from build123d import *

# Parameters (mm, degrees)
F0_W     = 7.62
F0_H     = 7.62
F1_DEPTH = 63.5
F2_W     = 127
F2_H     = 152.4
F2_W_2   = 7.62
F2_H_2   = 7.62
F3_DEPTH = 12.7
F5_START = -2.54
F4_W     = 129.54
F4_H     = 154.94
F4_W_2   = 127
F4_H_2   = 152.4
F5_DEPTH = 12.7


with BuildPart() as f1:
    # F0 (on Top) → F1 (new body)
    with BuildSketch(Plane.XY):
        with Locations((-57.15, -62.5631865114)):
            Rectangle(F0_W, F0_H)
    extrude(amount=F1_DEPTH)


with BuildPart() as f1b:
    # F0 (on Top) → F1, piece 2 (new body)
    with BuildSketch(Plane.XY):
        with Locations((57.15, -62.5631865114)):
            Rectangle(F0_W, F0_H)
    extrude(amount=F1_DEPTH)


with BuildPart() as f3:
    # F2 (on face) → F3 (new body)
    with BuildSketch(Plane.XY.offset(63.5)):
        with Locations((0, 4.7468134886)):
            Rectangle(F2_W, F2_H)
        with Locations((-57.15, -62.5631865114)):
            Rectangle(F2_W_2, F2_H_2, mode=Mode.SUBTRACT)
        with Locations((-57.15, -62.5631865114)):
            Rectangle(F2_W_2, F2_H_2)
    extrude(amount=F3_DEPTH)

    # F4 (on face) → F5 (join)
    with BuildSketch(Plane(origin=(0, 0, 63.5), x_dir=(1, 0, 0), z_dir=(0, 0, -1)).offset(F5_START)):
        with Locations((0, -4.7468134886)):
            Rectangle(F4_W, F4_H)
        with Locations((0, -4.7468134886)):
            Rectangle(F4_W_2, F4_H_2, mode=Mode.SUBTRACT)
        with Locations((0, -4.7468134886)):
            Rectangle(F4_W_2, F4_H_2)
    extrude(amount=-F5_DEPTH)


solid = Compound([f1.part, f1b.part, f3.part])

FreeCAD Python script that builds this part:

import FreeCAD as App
import Part
import Sketcher
Q = App.Units.Quantity

doc = App.newDocument("Part")
params = doc.addObject("Spreadsheet::Sheet", "Params")
for row, (alias, value) in enumerate([
    ("sketch1_width", "0.3 in"),
    ("pad1_length", "2.5 in"),
    ("sketch2_width", "0.3 in"),
    ("pad2_length", "2.5 in"),
    ("sketch3_width", "5 in"),
    ("sketch3_height", "6 in"),
    ("pad3_length", "0.5 in"),
    ("sketch4_width", "5.1 in"),
    ("sketch4_height", "6.1 in"),
    ("pad4_length", "0.5 in"),
], start=1):
    params.set(f"A{row}", alias)
    params.set(f"B{row}", "=" + value)
    params.setAlias(f"B{row}", alias)

body = doc.addObject("PartDesign::Body", "Body")

sketch1 = doc.addObject("Sketcher::SketchObject", "Sketch")
body.addObject(sketch1)
sketch1.AttachmentSupport = (doc.XY_Plane, [""])
sketch1.MapMode = "FlatFace"
sketch1.addGeometry([
    Part.LineSegment(App.Vector(-61, -59, 0), App.Vector(-61, -66, 0)),
    Part.LineSegment(App.Vector(-61, -66, 0), App.Vector(-53, -66, 0)),
    Part.LineSegment(App.Vector(-53, -66, 0), App.Vector(-53, -59, 0)),
    Part.LineSegment(App.Vector(-53, -59, 0), App.Vector(-61, -59, 0)),
], False)
sketch1.addConstraint([
    Sketcher.Constraint("Coincident", 0, 2, 1, 1),
    Sketcher.Constraint("Coincident", 1, 2, 2, 1),
    Sketcher.Constraint("Coincident", 2, 2, 3, 1),
    Sketcher.Constraint("Coincident", 3, 2, 0, 1),
    Sketcher.Constraint("Vertical", 0),
    Sketcher.Constraint("Horizontal", 1),
    Sketcher.Constraint("Vertical", 2),
    Sketcher.Constraint("Horizontal", 3),
    Sketcher.Constraint("Equal", 3, 0),
    Sketcher.Constraint("DistanceX", 1, 1, 1, 2, Q("0.3 in")),
    Sketcher.Constraint("DistanceX", 0, 2, -1, 1, Q("2.4 in")),
    Sketcher.Constraint("DistanceY", 0, 2, -1, 1, 66.373187),
])
sketch1.setExpression("Constraints[9]", "Params.sketch1_width")
pad1 = doc.addObject("PartDesign::Pad", "Pad")
body.addObject(pad1)
pad1.Profile = sketch1
pad1.setExpression("Length", "Params.pad1_length")
body2 = doc.addObject("PartDesign::Body", "Body001")

sketch2 = doc.addObject("Sketcher::SketchObject", "Sketch001")
body2.addObject(sketch2)
sketch2.AttachmentSupport = (doc.getObject("XY_Plane001"), [""])
sketch2.MapMode = "FlatFace"
sketch2.addGeometry([
    Part.LineSegment(App.Vector(53, -59, 0), App.Vector(53, -66, 0)),
    Part.LineSegment(App.Vector(53, -66, 0), App.Vector(61, -66, 0)),
    Part.LineSegment(App.Vector(61, -66, 0), App.Vector(61, -59, 0)),
    Part.LineSegment(App.Vector(61, -59, 0), App.Vector(53, -59, 0)),
], False)
sketch2.addConstraint([
    Sketcher.Constraint("Coincident", 0, 2, 1, 1),
    Sketcher.Constraint("Coincident", 1, 2, 2, 1),
    Sketcher.Constraint("Coincident", 2, 2, 3, 1),
    Sketcher.Constraint("Coincident", 3, 2, 0, 1),
    Sketcher.Constraint("Vertical", 0),
    Sketcher.Constraint("Horizontal", 1),
    Sketcher.Constraint("Vertical", 2),
    Sketcher.Constraint("Horizontal", 3),
    Sketcher.Constraint("Equal", 3, 0),
    Sketcher.Constraint("DistanceX", 1, 1, 1, 2, Q("0.3 in")),
    Sketcher.Constraint("DistanceX", -1, 1, 0, 2, Q("2.1 in")),
    Sketcher.Constraint("DistanceY", 0, 2, -1, 1, 66.373187),
])
sketch2.setExpression("Constraints[9]", "Params.sketch2_width")
pad2 = doc.addObject("PartDesign::Pad", "Pad001")
body2.addObject(pad2)
pad2.Profile = sketch2
pad2.setExpression("Length", "Params.pad2_length")
body3 = doc.addObject("PartDesign::Body", "Body002")

sketch3 = doc.addObject("Sketcher::SketchObject", "Sketch002")
body3.addObject(sketch3)
sketch3.AttachmentSupport = (doc.getObject("XY_Plane002"), [""])
sketch3.MapMode = "FlatFace"
sketch3.AttachmentOffset = App.Placement(App.Vector(0, 0, 2.5 * 25.4), App.Rotation())
sketch3.addGeometry([
    Part.LineSegment(App.Vector(-64, 81, 0), App.Vector(-64, -71, 0)),
    Part.LineSegment(App.Vector(-64, -71, 0), App.Vector(64, -71, 0)),
    Part.LineSegment(App.Vector(64, -71, 0), App.Vector(64, 81, 0)),
    Part.LineSegment(App.Vector(64, 81, 0), App.Vector(-64, 81, 0)),
], False)
sketch3.addConstraint([
    Sketcher.Constraint("Coincident", 0, 2, 1, 1),
    Sketcher.Constraint("Coincident", 1, 2, 2, 1),
    Sketcher.Constraint("Coincident", 2, 2, 3, 1),
    Sketcher.Constraint("Coincident", 3, 2, 0, 1),
    Sketcher.Constraint("Vertical", 0),
    Sketcher.Constraint("Horizontal", 1),
    Sketcher.Constraint("Vertical", 2),
    Sketcher.Constraint("Horizontal", 3),
    Sketcher.Constraint("DistanceX", 1, 1, 1, 2, Q("5 in")),
    Sketcher.Constraint("DistanceY", 0, 2, 0, 1, Q("6 in")),
    Sketcher.Constraint("DistanceX", 0, 2, -1, 1, Q("2.5 in")),
    Sketcher.Constraint("DistanceY", 0, 2, -1, 1, 71.453187),
])
sketch3.setExpression("Constraints[8]", "Params.sketch3_width")
sketch3.setExpression("Constraints[9]", "Params.sketch3_height")
pad3 = doc.addObject("PartDesign::Pad", "Pad002")
body3.addObject(pad3)
pad3.Profile = sketch3
pad3.setExpression("Length", "Params.pad3_length")

sketch4 = doc.addObject("Sketcher::SketchObject", "Sketch003")
body3.addObject(sketch4)
sketch4.AttachmentSupport = (doc.getObject("XY_Plane002"), [""])
sketch4.MapMode = "FlatFace"
sketch4.AttachmentOffset = App.Placement(App.Vector(0, 0, 2.6 * 25.4), App.Rotation())
sketch4.addGeometry([
    Part.LineSegment(App.Vector(-65, -73, 0), App.Vector(-65, 82, 0)),
    Part.LineSegment(App.Vector(-65, 82, 0), App.Vector(65, 82, 0)),
    Part.LineSegment(App.Vector(65, 82, 0), App.Vector(65, -73, 0)),
    Part.LineSegment(App.Vector(65, -73, 0), App.Vector(-65, -73, 0)),
], False)
sketch4.addConstraint([
    Sketcher.Constraint("Coincident", 0, 2, 1, 1),
    Sketcher.Constraint("Coincident", 1, 2, 2, 1),
    Sketcher.Constraint("Coincident", 2, 2, 3, 1),
    Sketcher.Constraint("Coincident", 3, 2, 0, 1),
    Sketcher.Constraint("Vertical", 0),
    Sketcher.Constraint("Horizontal", 1),
    Sketcher.Constraint("Vertical", 2),
    Sketcher.Constraint("Horizontal", 3),
    Sketcher.Constraint("DistanceX", 1, 1, 1, 2, Q("5.1 in")),
    Sketcher.Constraint("DistanceY", 0, 1, 0, 2, Q("6.1 in")),
    Sketcher.Constraint("DistanceX", 0, 2, -1, 1, Q("2.55 in")),
    Sketcher.Constraint("DistanceY", -1, 1, 0, 2, 82.216813),
])
sketch4.setExpression("Constraints[8]", "Params.sketch4_width")
sketch4.setExpression("Constraints[9]", "Params.sketch4_height")
pad4 = doc.addObject("PartDesign::Pad", "Pad003")
body3.addObject(pad4)
pad4.Profile = sketch4
pad4.setExpression("Length", "Params.pad4_length")

doc.recompute()
